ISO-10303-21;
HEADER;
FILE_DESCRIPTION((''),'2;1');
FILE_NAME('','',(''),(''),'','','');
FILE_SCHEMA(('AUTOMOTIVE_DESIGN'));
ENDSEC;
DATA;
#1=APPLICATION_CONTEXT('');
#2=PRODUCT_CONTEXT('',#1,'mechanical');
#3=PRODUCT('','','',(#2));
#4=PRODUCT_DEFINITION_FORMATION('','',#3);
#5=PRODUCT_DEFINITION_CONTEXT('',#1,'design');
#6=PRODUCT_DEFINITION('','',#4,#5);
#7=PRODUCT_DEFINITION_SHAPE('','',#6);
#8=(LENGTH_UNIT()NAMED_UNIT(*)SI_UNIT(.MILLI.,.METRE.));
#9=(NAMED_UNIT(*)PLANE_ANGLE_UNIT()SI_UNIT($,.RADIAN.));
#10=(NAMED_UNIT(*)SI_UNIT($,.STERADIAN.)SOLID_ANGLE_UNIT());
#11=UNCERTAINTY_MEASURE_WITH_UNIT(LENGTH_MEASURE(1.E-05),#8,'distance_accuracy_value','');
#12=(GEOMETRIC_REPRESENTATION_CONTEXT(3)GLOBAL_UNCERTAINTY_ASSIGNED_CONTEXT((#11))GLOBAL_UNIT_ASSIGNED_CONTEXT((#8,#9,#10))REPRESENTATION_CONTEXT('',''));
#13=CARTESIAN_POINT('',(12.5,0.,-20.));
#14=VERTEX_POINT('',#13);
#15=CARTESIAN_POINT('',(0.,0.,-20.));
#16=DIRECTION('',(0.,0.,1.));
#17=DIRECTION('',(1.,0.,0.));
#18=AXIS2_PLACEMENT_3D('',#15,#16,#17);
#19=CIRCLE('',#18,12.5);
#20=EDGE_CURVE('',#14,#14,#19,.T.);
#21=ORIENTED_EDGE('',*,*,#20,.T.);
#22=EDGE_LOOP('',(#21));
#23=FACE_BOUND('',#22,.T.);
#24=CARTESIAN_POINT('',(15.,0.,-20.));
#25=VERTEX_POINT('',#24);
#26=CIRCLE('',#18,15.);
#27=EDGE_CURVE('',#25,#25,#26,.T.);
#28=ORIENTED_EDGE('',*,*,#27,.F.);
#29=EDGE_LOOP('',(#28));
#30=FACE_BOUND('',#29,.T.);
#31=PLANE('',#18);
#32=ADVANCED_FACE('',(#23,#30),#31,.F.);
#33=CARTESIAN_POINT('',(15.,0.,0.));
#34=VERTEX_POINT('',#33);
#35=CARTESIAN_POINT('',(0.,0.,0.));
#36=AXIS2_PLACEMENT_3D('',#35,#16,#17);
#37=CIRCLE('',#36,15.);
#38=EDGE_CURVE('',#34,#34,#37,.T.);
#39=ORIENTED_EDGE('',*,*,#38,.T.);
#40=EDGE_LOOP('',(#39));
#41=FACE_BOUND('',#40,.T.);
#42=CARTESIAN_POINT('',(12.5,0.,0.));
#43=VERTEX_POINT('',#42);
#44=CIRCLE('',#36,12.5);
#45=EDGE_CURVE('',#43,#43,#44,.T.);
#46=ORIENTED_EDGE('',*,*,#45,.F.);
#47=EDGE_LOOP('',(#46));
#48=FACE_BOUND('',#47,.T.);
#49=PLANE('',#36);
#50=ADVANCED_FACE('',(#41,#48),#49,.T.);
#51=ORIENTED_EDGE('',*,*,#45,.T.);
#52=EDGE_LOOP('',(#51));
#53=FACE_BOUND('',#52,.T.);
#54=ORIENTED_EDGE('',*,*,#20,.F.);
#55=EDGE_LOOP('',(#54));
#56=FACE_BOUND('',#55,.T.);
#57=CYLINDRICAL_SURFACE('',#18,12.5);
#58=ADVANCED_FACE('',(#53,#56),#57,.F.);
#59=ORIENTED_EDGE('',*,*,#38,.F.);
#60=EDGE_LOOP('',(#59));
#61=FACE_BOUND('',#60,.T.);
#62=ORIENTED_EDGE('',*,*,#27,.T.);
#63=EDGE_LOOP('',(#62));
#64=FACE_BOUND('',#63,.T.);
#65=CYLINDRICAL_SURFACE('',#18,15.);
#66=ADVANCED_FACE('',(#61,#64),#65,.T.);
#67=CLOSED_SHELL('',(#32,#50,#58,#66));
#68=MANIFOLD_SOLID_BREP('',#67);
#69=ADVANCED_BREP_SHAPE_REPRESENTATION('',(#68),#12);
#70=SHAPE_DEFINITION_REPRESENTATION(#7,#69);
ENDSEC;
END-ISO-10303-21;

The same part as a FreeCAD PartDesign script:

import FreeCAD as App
import Part
import Sketcher
from FreeCAD import Vector

doc = App.newDocument("Part")
params = doc.addObject("Spreadsheet::Sheet", "Params")
for row, (alias, value) in enumerate([
    ("sketch1_diameter", "30 mm"),
    ("sketch1_diameter2", "25 mm"),
    ("pad1_length", "20 mm"),
], start=1):
    params.set(f"A{row}", alias)
    params.set(f"B{row}", "=" + value)
    params.setAlias(f"B{row}", alias)

body = doc.addObject("PartDesign::Body", "Body")

# Sketch on XY plane
sketch1 = body.newObject("Sketcher::SketchObject", "Sketch")
sketch1.AttachmentSupport = (doc.getObject("XY_Plane"), [""])
sketch1.MapMode = "FlatFace"
sketch1.addGeometry(Part.Circle(Vector(0, 0, 0), Vector(0, 0, 1), 15), False)
sketch1.addGeometry(Part.Circle(Vector(0, 0, 0), Vector(0, 0, 1), 12), False)
sketch1.addConstraint(Sketcher.Constraint("Coincident", 0, 3, -1, 1))
sketch1.addConstraint(Sketcher.Constraint("Coincident", 1, 3, -1, 1))
sketch1.addConstraint(Sketcher.Constraint("Diameter", 0, 30.0))
sketch1.addConstraint(Sketcher.Constraint("Diameter", 1, 25.0))
sketch1.setExpression("Constraints[2]", "Params.sketch1_diameter")
sketch1.setExpression("Constraints[3]", "Params.sketch1_diameter2")
pad1 = body.newObject("PartDesign::Pad", "Pad")
pad1.Profile = sketch1
pad1.setExpression("Length", "Params.pad1_length")
pad1.Reversed = True

doc.recompute()
